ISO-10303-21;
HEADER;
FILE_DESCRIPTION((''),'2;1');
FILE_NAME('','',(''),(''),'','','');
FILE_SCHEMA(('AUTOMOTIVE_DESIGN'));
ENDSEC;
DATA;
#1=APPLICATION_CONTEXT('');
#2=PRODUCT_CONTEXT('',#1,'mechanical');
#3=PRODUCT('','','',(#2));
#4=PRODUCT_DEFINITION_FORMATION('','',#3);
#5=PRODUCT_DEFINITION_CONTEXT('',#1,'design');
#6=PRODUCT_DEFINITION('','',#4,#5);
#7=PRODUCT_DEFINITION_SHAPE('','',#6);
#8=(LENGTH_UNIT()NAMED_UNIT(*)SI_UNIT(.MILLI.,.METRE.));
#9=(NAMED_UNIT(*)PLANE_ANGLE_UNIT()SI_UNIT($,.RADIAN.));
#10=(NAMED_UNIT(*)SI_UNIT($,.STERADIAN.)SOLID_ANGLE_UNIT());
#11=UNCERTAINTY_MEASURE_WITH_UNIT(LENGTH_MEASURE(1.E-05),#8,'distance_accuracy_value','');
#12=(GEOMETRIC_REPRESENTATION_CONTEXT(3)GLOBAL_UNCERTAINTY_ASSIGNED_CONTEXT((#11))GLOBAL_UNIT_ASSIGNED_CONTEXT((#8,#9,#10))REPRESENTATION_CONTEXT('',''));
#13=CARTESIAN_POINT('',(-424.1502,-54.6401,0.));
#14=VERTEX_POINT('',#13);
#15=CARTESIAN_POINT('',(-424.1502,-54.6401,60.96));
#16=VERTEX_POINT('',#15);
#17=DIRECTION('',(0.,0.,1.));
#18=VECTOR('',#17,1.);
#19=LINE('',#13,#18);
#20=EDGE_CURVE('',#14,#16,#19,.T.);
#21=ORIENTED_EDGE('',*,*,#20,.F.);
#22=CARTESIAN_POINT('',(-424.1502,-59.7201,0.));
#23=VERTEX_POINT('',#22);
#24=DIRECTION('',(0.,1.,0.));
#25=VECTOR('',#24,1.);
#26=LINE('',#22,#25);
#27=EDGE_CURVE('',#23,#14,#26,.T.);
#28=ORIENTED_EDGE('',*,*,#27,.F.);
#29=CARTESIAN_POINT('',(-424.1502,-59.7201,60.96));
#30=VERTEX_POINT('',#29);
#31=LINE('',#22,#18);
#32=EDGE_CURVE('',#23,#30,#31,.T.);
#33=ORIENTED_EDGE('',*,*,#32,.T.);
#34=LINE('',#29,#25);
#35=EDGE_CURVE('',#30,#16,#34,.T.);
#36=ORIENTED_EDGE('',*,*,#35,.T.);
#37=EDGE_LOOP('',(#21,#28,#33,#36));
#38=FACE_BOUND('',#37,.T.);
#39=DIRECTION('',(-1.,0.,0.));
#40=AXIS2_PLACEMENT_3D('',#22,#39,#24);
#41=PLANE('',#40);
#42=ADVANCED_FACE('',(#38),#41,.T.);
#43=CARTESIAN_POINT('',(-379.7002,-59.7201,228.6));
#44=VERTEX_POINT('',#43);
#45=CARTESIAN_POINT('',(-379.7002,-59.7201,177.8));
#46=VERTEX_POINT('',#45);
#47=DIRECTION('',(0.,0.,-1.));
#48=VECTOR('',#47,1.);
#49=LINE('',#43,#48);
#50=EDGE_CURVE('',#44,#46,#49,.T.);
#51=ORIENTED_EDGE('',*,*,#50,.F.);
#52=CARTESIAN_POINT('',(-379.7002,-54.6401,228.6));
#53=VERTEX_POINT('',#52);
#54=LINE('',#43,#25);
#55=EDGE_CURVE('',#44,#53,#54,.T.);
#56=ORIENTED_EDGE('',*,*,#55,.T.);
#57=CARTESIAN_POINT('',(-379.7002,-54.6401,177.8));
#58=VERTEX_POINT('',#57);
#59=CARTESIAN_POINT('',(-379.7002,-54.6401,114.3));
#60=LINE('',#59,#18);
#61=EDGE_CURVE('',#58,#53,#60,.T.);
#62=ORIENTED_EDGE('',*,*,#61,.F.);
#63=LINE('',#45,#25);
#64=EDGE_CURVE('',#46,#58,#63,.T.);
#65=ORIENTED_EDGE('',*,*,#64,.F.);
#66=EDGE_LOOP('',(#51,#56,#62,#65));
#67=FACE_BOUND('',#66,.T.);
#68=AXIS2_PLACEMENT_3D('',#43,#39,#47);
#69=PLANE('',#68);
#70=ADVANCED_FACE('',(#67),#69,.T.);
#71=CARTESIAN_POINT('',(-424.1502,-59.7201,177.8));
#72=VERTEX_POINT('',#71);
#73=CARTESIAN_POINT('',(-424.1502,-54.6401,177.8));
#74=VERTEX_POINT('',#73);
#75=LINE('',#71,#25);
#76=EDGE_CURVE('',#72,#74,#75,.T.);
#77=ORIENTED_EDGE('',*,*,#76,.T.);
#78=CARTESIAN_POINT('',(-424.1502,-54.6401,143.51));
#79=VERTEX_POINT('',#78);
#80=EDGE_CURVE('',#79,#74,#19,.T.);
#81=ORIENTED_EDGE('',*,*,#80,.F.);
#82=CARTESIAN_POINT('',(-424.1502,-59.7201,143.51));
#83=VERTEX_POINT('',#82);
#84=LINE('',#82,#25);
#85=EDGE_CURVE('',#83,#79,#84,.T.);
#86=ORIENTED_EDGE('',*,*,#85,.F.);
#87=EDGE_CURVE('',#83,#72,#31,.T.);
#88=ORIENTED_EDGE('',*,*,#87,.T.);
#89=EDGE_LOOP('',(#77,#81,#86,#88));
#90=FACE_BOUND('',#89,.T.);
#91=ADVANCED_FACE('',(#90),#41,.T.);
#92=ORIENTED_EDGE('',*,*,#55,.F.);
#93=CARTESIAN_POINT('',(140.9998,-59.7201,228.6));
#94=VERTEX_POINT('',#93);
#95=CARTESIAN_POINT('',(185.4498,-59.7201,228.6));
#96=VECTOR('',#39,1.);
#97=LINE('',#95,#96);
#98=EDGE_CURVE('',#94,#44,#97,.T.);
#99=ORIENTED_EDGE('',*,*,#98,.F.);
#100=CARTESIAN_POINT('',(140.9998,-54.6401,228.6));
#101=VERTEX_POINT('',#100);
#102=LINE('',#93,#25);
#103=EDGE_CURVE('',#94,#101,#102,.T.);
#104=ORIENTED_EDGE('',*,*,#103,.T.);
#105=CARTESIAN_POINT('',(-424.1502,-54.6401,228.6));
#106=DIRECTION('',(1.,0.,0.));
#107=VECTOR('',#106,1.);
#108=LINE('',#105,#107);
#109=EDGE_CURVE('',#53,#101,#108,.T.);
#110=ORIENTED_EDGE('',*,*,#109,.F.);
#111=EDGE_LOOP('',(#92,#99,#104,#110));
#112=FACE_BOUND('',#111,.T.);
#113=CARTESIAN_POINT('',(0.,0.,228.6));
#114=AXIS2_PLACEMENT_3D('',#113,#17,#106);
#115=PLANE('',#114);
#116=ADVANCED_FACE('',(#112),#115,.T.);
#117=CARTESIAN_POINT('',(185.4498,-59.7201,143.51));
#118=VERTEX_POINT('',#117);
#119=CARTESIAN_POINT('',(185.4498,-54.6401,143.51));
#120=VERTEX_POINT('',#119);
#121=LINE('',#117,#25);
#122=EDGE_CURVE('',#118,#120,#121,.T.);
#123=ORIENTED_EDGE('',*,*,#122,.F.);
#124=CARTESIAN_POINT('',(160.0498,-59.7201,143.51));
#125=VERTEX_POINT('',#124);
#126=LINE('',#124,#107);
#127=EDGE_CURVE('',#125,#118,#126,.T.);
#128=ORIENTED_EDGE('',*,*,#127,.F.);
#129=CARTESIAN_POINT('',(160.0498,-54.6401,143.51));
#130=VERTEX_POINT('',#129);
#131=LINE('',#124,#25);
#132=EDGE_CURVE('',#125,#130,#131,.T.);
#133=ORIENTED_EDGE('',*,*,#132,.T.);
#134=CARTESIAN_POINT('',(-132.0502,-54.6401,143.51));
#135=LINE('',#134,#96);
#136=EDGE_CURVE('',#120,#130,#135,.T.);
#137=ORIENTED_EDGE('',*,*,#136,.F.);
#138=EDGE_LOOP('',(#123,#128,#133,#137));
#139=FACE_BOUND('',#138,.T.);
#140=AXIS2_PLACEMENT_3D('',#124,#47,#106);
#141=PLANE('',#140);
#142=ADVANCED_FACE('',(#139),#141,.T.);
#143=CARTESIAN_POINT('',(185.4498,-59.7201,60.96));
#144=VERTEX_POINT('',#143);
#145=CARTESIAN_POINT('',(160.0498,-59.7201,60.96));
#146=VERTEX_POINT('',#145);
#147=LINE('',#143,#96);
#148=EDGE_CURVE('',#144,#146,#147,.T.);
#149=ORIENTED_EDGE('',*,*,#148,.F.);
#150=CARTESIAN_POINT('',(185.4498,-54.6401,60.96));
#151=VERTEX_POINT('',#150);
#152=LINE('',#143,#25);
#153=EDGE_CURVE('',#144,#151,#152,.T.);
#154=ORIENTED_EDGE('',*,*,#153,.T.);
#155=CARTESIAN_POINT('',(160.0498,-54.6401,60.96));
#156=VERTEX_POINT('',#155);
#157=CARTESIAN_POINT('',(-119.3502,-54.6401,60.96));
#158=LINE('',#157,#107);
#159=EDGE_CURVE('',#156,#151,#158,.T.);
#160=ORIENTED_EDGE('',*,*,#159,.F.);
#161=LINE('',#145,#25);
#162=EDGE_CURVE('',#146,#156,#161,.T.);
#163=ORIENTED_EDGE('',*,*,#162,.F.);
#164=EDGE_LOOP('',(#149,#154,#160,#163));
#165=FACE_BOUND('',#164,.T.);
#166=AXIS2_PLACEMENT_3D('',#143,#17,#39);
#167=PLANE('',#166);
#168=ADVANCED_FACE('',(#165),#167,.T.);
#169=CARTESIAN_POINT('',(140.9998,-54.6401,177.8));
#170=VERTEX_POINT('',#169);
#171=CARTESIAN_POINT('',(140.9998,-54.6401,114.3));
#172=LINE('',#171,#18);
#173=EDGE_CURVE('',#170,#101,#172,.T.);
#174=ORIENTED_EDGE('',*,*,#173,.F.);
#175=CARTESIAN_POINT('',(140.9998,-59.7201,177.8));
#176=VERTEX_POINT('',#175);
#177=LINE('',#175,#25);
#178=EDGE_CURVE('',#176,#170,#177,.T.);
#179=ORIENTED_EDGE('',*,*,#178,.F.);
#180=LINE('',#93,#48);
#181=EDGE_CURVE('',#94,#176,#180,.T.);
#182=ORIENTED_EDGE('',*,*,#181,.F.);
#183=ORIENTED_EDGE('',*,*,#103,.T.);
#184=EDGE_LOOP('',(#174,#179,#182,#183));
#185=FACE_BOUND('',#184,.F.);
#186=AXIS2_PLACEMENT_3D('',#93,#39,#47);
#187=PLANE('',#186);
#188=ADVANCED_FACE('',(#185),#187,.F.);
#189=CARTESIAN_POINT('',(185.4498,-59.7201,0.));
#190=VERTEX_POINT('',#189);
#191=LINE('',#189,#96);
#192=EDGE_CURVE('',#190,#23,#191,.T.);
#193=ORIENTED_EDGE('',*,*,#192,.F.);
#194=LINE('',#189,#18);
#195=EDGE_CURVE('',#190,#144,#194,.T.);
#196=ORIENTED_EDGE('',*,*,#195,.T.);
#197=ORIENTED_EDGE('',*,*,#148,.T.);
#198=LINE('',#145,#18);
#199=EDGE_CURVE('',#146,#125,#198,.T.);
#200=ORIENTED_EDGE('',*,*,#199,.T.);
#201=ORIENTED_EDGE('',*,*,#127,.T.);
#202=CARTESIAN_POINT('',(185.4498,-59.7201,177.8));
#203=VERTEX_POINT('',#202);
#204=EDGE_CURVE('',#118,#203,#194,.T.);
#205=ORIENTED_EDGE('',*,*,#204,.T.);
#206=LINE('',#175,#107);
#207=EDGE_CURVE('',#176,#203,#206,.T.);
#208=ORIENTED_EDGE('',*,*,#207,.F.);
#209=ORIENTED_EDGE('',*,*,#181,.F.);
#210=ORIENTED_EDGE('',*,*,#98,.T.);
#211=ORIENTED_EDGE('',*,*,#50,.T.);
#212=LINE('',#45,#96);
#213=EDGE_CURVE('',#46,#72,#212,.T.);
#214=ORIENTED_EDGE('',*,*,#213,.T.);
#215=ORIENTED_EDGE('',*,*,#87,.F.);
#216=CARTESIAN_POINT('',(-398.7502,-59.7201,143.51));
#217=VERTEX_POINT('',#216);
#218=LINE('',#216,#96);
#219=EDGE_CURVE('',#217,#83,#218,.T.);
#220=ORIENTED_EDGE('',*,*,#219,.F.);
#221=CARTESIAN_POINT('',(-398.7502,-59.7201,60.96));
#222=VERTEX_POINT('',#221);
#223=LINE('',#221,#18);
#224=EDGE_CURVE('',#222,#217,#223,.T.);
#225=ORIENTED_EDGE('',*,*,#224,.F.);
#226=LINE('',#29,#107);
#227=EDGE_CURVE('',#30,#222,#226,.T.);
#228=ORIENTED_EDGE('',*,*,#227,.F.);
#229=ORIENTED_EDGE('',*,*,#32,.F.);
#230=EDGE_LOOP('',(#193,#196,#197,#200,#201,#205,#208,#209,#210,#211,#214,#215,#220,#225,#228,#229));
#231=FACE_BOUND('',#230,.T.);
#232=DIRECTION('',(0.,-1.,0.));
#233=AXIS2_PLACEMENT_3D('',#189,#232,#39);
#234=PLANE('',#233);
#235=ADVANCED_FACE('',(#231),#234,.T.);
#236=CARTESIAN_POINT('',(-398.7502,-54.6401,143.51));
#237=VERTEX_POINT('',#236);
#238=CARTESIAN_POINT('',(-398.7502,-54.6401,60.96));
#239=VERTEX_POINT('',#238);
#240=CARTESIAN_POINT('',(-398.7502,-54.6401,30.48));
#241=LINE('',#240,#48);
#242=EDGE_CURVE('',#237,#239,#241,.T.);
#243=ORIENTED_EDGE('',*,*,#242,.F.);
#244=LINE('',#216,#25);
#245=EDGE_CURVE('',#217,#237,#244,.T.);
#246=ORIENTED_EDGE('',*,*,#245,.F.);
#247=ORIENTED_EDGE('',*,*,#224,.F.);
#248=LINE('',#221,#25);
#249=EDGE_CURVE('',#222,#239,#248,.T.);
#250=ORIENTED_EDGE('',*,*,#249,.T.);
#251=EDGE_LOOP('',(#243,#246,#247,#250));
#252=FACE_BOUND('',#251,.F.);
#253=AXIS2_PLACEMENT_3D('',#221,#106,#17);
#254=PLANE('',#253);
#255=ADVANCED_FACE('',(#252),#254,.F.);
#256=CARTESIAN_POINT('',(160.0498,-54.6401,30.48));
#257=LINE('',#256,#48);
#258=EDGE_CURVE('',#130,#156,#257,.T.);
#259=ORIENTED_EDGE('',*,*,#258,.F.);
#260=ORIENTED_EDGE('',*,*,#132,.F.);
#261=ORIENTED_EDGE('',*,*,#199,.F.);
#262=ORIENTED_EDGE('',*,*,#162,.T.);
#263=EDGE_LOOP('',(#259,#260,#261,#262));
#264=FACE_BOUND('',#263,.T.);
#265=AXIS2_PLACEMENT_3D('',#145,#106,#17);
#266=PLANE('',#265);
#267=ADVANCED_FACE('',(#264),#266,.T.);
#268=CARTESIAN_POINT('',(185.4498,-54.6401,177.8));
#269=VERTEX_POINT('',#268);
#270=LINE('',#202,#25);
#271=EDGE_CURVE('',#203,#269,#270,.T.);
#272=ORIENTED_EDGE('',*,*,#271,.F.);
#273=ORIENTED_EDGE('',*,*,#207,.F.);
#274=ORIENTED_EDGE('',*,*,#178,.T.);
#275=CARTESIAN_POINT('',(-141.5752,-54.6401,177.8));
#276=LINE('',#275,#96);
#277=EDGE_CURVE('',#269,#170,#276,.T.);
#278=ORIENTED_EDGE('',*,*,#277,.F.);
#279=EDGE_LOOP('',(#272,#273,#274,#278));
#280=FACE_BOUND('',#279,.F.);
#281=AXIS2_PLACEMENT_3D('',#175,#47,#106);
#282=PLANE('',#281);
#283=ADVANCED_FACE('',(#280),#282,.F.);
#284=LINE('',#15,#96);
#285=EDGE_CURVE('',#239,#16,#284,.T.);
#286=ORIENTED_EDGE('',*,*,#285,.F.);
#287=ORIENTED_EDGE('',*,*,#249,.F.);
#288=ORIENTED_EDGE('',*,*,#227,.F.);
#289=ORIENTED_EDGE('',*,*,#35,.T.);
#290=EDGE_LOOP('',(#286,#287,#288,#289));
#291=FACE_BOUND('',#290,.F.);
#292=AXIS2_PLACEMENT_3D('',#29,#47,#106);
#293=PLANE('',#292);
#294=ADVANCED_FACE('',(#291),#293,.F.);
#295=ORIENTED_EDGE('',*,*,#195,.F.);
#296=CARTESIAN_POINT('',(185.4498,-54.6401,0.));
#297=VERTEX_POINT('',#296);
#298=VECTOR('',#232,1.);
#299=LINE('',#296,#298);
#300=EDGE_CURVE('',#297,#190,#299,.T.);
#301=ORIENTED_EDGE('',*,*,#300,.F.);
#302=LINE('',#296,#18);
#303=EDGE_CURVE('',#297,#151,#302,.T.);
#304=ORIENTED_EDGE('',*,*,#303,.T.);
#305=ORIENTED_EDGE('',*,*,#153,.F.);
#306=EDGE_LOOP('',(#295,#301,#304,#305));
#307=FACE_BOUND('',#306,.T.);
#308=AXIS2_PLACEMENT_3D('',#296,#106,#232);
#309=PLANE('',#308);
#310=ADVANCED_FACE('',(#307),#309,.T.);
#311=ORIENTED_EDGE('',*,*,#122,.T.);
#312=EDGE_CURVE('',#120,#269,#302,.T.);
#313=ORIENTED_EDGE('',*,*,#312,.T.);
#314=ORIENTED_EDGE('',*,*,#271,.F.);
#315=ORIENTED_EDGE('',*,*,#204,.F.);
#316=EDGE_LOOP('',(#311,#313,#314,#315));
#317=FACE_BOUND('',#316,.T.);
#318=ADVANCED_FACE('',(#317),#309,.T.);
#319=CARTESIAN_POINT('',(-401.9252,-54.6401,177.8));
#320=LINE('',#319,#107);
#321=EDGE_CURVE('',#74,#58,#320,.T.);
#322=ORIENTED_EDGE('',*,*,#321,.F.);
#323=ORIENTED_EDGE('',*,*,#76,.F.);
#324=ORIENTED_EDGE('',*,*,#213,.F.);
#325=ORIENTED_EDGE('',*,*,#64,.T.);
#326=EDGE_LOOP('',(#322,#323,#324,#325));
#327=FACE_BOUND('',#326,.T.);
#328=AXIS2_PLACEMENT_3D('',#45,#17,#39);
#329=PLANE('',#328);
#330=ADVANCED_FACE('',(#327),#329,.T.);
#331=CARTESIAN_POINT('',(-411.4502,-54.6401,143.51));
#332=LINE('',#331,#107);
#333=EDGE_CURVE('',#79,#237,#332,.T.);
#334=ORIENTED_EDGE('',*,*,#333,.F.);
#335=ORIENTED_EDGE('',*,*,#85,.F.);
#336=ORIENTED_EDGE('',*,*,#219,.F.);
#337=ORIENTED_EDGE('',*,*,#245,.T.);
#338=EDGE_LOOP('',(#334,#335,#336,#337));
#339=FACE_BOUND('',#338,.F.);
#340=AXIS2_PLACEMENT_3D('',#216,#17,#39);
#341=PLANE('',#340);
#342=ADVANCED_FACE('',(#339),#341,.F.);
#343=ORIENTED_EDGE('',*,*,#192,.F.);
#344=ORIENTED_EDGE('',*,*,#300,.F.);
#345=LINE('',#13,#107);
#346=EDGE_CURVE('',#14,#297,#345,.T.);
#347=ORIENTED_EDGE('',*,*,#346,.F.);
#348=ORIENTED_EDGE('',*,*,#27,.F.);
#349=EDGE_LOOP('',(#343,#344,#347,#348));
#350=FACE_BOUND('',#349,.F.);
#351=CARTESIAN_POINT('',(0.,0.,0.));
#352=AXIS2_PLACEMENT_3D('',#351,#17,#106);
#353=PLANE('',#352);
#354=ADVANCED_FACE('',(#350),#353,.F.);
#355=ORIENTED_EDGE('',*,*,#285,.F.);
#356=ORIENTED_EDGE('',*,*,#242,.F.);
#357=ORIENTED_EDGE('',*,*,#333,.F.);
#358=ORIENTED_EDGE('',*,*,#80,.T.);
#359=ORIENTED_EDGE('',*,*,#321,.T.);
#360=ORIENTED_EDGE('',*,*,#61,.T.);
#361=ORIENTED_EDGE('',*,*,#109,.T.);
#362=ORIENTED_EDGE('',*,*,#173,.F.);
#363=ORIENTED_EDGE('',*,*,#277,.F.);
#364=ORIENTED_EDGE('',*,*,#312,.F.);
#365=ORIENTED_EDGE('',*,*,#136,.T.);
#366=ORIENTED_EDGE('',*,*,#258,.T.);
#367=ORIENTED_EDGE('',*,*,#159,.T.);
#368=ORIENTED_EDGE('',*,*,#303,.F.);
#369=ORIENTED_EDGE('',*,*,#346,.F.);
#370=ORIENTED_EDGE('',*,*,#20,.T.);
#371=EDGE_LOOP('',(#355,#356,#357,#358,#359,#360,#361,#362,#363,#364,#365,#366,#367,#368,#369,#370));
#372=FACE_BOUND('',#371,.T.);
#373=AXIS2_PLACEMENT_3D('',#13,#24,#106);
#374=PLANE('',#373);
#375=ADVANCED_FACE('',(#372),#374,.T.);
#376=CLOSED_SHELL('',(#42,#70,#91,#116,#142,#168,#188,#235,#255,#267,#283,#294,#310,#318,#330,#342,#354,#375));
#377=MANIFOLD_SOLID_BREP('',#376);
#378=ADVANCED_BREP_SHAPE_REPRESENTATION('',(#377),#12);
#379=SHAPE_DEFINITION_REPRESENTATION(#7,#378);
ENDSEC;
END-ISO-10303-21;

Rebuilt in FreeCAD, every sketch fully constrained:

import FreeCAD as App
import Part
import Sketcher

V = App.Vector
Q = App.Units.Quantity

doc = App.newDocument("Part")
params = doc.addObject("Spreadsheet::Sheet", "Params")
for row, (alias, value) in enumerate([
    ("sketch1_width", "24 in"),
    ("sketch1_height", "0.2 in"),
    ("pad1_length", "9 in"),
    ("sketch2_width", "1 in"),
    ("sketch2_height", "2 in"),
    ("sketch2_width2", "1.75 in"),
    ("sketch2_height2", "3.25 in"),
    ("pocket1_length", "1 in"),
], start=1):
    params.set(f"A{row}", alias)
    params.set(f"B{row}", "=" + value)
    params.setAlias(f"B{row}", alias)

body = doc.addObject("PartDesign::Body", "Body")

# Sketch on XY plane
sketch1 = body.newObject("Sketcher::SketchObject", "Sketch")
sketch1.AttachmentSupport = (doc.getObject("XY_Plane"), [""])
sketch1.MapMode = "FlatFace"
sketch1.addGeometry(Part.LineSegment(V(-424.1502, -59.7201, 0), V(185.4498, -59.7201, 0)), False)
sketch1.addGeometry(Part.LineSegment(V(185.4498, -59.7201, 0), V(185.4498, -54.6401, 0)), False)
sketch1.addGeometry(Part.LineSegment(V(185.4498, -54.6401, 0), V(-424.1502, -54.6401, 0)), False)
sketch1.addGeometry(Part.LineSegment(V(-424.1502, -54.6401, 0), V(-424.1502, -59.7201, 0)), False)
sketch1.addConstraint(Sketcher.Constraint("Coincident", 0, 2, 1, 1))
sketch1.addConstraint(Sketcher.Constraint("Coincident", 1, 2, 2, 1))
sketch1.addConstraint(Sketcher.Constraint("Coincident", 2, 2, 3, 1))
sketch1.addConstraint(Sketcher.Constraint("Coincident", 3, 2, 0, 1))
sketch1.addConstraint(Sketcher.Constraint("Horizontal", 0))
sketch1.addConstraint(Sketcher.Constraint("Vertical", 1))
sketch1.addConstraint(Sketcher.Constraint("Horizontal", 2))
sketch1.addConstraint(Sketcher.Constraint("Vertical", 3))
sketch1.addConstraint(Sketcher.Constraint("DistanceX", 0, 1, 0, 2, Q("24 in")))
sketch1.addConstraint(Sketcher.Constraint("DistanceY", 1, 1, 1, 2, Q("0.2 in")))
sketch1.addConstraint(Sketcher.Constraint("DistanceX", -1, 1, 0, 2, 185.4498))
sketch1.addConstraint(Sketcher.Constraint("DistanceY", 0, 2, -1, 1, 59.72))
sketch1.setExpression("Constraints[8]", "Params.sketch1_width")
sketch1.setExpression("Constraints[9]", "Params.sketch1_height")
pad1 = body.newObject("PartDesign::Pad", "Pad")
pad1.Profile = sketch1
pad1.setExpression("Length", "Params.pad1_length")

# Sketch on XZ plane
sketch2 = body.newObject("Sketcher::SketchObject", "Sketch001")
sketch2.AttachmentSupport = (doc.getObject("XZ_Plane"), [""])
sketch2.MapMode = "FlatFace"
sketch2.AttachmentOffset = App.Placement(V(0, 0, 59.7201), App.Rotation())
sketch2.addGeometry(Part.LineSegment(V(-424.1502, 228.6, 0), V(-424.1502, 177.8, 0)), False)
sketch2.addGeometry(Part.LineSegment(V(-424.1502, 177.8, 0), V(-379.7002, 177.8, 0)), False)
sketch2.addGeometry(Part.LineSegment(V(-379.7002, 177.8, 0), V(-379.7002, 228.6, 0)), False)
sketch2.addGeometry(Part.LineSegment(V(-379.7002, 228.6, 0), V(-424.1502, 228.6, 0)), False)
sketch2.addGeometry(Part.LineSegment(V(-424.1502, 143.51, 0), V(-424.1502, 60.96, 0)), False)
sketch2.addGeometry(Part.LineSegment(V(-424.1502, 60.96, 0), V(-398.7502, 60.96, 0)), False)
sketch2.addGeometry(Part.LineSegment(V(-398.7502, 60.96, 0), V(-398.7502, 143.51, 0)), False)
sketch2.addGeometry(Part.LineSegment(V(-398.7502, 143.51, 0), V(-424.1502, 143.51, 0)), False)
sketch2.addGeometry(Part.LineSegment(V(140.9998, 177.8, 0), V(185.4498, 177.8, 0)), False)
sketch2.addGeometry(Part.LineSegment(V(185.4498, 177.8, 0), V(185.4498, 228.6, 0)), False)
sketch2.addGeometry(Part.LineSegment(V(185.4498, 228.6, 0), V(140.9998, 228.6, 0)), False)
sketch2.addGeometry(Part.LineSegment(V(140.9998, 228.6, 0), V(140.9998, 177.8, 0)), False)
sketch2.addGeometry(Part.LineSegment(V(160.0498, 60.96, 0), V(185.4498, 60.96, 0)), False)
sketch2.addGeometry(Part.LineSegment(V(185.4498, 60.96, 0), V(185.4498, 143.51, 0)), False)
sketch2.addGeometry(Part.LineSegment(V(185.4498, 143.51, 0), V(160.0498, 143.51, 0)), False)
sketch2.addGeometry(Part.LineSegment(V(160.0498, 143.51, 0), V(160.0498, 60.96, 0)), False)
sketch2.addConstraint(Sketcher.Constraint("Coincident", 0, 2, 1, 1))
sketch2.addConstraint(Sketcher.Constraint("Coincident", 1, 2, 2, 1))
sketch2.addConstraint(Sketcher.Constraint("Coincident", 2, 2, 3, 1))
sketch2.addConstraint(Sketcher.Constraint("Coincident", 3, 2, 0, 1))
sketch2.addConstraint(Sketcher.Constraint("Coincident", 4, 2, 5, 1))
sketch2.addConstraint(Sketcher.Constraint("Coincident", 5, 2, 6, 1))
sketch2.addConstraint(Sketcher.Constraint("Coincident", 6, 2, 7, 1))
sketch2.addConstraint(Sketcher.Constraint("Coincident", 7, 2, 4, 1))
sketch2.addConstraint(Sketcher.Constraint("Coincident", 8, 2, 9, 1))
sketch2.addConstraint(Sketcher.Constraint("Coincident", 9, 2, 10, 1))
sketch2.addConstraint(Sketcher.Constraint("Coincident", 10, 2, 11, 1))
sketch2.addConstraint(Sketcher.Constraint("Coincident", 11, 2, 8, 1))
sketch2.addConstraint(Sketcher.Constraint("Coincident", 12, 2, 13, 1))
sketch2.addConstraint(Sketcher.Constraint("Coincident", 13, 2, 14, 1))
sketch2.addConstraint(Sketcher.Constraint("Coincident", 14, 2, 15, 1))
sketch2.addConstraint(Sketcher.Constraint("Coincident", 15, 2, 12, 1))
sketch2.addConstraint(Sketcher.Constraint("Vertical", 0))
sketch2.addConstraint(Sketcher.Constraint("Horizontal", 1))
sketch2.addConstraint(Sketcher.Constraint("Vertical", 2))
sketch2.addConstraint(Sketcher.Constraint("Horizontal", 3))
sketch2.addConstraint(Sketcher.Constraint("Vertical", 4))
sketch2.addConstraint(Sketcher.Constraint("Horizontal", 5))
sketch2.addConstraint(Sketcher.Constraint("Vertical", 6))
sketch2.addConstraint(Sketcher.Constraint("Horizontal", 7))
sketch2.addConstraint(Sketcher.Constraint("Horizontal", 8))
sketch2.addConstraint(Sketcher.Constraint("Vertical", 9))
sketch2.addConstraint(Sketcher.Constraint("Horizontal", 10))
sketch2.addConstraint(Sketcher.Constraint("Vertical", 11))
sketch2.addConstraint(Sketcher.Constraint("Horizontal", 12))
sketch2.addConstraint(Sketcher.Constraint("Vertical", 13))
sketch2.addConstraint(Sketcher.Constraint("Horizontal", 14))
sketch2.addConstraint(Sketcher.Constraint("Vertical", 15))
sketch2.addConstraint(Sketcher.Constraint("Horizontal", 1, 2, 8, 2))
sketch2.addConstraint(Sketcher.Constraint("Horizontal", 3, 2, 9, 2))
sketch2.addConstraint(Sketcher.Constraint("Horizontal", 5, 2, 12, 2))
sketch2.addConstraint(Sketcher.Constraint("Horizontal", 7, 2, 13, 2))
sketch2.addConstraint(Sketcher.Constraint("Vertical", 3, 2, 4, 2))
sketch2.addConstraint(Sketcher.Constraint("Vertical", 9, 2, 12, 2))
sketch2.addConstraint(Sketcher.Constraint("Equal", 3, 8))
sketch2.addConstraint(Sketcher.Constraint("Equal", 7, 12))
sketch2.addConstraint(Sketcher.Constraint("DistanceX", 5, 1, 5, 2, Q("1 in")))
sketch2.addConstraint(Sketcher.Constraint("DistanceY", 0, 2, 0, 1, Q("2 in")))
sketch2.addConstraint(Sketcher.Constraint("DistanceX", 1, 1, 1, 2, Q("1.75 in")))
sketch2.addConstraint(Sketcher.Constraint("DistanceY", 4, 2, 4, 1, Q("3.25 in")))
sketch2.addConstraint(Sketcher.Constraint("DistanceY", -1, 1, 4, 2, Q("2.4 in")))
sketch2.addConstraint(Sketcher.Constraint("DistanceY", -1, 1, 0, 2, Q("7 in")))
sketch2.addConstraint(Sketcher.Constraint("DistanceX", 6, 2, 8, 2, Q("23 in")))
sketch2.addConstraint(Sketcher.Constraint("DistanceX", 0, 2, -1, 1, 424.1502))
sketch2.setExpression("Constraints[40]", "Params.sketch2_width")
sketch2.setExpression("Constraints[41]", "Params.sketch2_height")
sketch2.setExpression("Constraints[42]", "Params.sketch2_width2")
sketch2.setExpression("Constraints[43]", "Params.sketch2_height2")
pocket1 = body.newObject("PartDesign::Pocket", "Pocket")
pocket1.Profile = sketch2
pocket1.setExpression("Length", "Params.pocket1_length")

doc.recompute()
